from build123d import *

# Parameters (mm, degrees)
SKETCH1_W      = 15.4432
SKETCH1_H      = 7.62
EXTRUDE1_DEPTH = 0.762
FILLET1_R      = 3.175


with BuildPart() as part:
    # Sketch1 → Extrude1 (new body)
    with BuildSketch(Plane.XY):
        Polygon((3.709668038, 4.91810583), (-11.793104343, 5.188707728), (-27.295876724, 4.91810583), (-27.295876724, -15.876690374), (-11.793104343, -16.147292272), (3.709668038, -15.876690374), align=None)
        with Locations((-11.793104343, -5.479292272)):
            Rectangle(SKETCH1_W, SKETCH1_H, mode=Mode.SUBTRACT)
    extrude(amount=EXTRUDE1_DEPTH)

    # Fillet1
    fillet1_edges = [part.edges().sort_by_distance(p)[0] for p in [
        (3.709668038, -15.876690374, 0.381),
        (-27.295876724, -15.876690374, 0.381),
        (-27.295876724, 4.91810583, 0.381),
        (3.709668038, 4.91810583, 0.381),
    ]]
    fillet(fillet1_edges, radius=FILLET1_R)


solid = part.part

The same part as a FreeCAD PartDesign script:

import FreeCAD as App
import Part
import Sketcher

V = App.Vector
Q = App.Units.Quantity


def edges_at(feature, points):
    """Names of the edges that pass closest to the given points."""
    edges = feature.Shape.Edges
    near = lambda p: min(range(len(edges)), key=lambda i: edges[i].distToShape(Part.Vertex(*p))[0])
    return sorted({f"Edge{near(p) + 1}" for p in points})


def add_polygon(sketch, points):
    """Adds a closed chain of lines whose ends are joined by coincident constraints."""
    first, n = sketch.GeometryCount, len(points)
    for a, b in zip(points, points[1:] + points[:1]):
        sketch.addGeometry(Part.LineSegment(App.Vector(*a, 0), App.Vector(*b, 0)), False)
    for i in range(n):
        sketch.addConstraint(Sketcher.Constraint("Coincident", first + i, 2, first + (i + 1) % n, 1))

doc = App.newDocument("Part")
body = doc.addObject("PartDesign::Body", "Body")

sketch1 = body.newObject("Sketcher::SketchObject", "Sketch")
sketch1.AttachmentSupport = (doc.getObject("XY_Plane"), [""])
sketch1.MapMode = "FlatFace"
add_polygon(sketch1, [(3.709668, 4.918106), (-11.793104, 5.188708), (-27.295877, 4.918106), (-27.295877, -15.87669), (-11.793104, -16.147292), (3.709668, -15.87669)])
add_polygon(sketch1, [(-4.071504, -9.289292), (-19.514704, -9.289292), (-19.514704, -1.669292), (-4.071504, -1.669292)])
sketch1.addConstraint(Sketcher.Constraint("Vertical", 2))
sketch1.addConstraint(Sketcher.Constraint("Vertical", 5))
sketch1.addConstraint(Sketcher.Constraint("Horizontal", 6))
sketch1.addConstraint(Sketcher.Constraint("Vertical", 7))
sketch1.addConstraint(Sketcher.Constraint("Horizontal", 8))
sketch1.addConstraint(Sketcher.Constraint("Vertical", 9))
sketch1.addConstraint(Sketcher.Constraint("Parallel", 0, 3))
sketch1.addConstraint(Sketcher.Constraint("Parallel", 1, 4))
sketch1.addConstraint(Sketcher.Constraint("Horizontal", 2, 2, 4, 2))
sketch1.addConstraint(Sketcher.Constraint("Horizontal", 1, 2, 5, 2))
sketch1.addConstraint(Sketcher.Constraint("Vertical", 0, 2, 3, 2))
sketch1.addConstraint(Sketcher.Constraint("DistanceY", 7, 1, 7, 2, Q("0.3 in")))
sketch1.addConstraint(Sketcher.Constraint("Angle", 0, Q("179 deg")))
sketch1.addConstraint(Sketcher.Constraint("DistanceX", 6, 2, 6, 1, Q("0.608 in")))
sketch1.addConstraint(Sketcher.Constraint("DistanceY", 3, 2, 0, 2, Q("0.84 in")))
sketch1.addConstraint(Sketcher.Constraint("DistanceY", 3, 2, 6, 2, Q("0.27 in")))
sketch1.addConstraint(Sketcher.Constraint("DistanceX", 6, 2, 3, 2, Q("0.304 in")))
sketch1.addConstraint(Sketcher.Constraint("DistanceY", 1, 2, 0, 2, 0.270602))
sketch1.addConstraint(Sketcher.Constraint("DistanceY", 2, 2, -1, 1, 15.87669))
sketch1.addConstraint(Sketcher.Constraint("DistanceX", -1, 1, 4, 2, 3.709668))
pad1 = body.newObject("PartDesign::Pad", "Pad")
pad1.Profile = sketch1
pad1.Length = Q("0.03 in")
doc.recompute()

fillet = body.newObject("PartDesign::Fillet", "Fillet")
fillet.Base = (pad1, edges_at(pad1, [
    (3.71, -15.877, 0.381),
    (-27.296, -15.877, 0.381),
    (-27.296, 4.918, 0.381),
    (3.71, 4.918, 0.381),
]))
fillet.Radius = Q("0.125 in")

doc.recompute()
